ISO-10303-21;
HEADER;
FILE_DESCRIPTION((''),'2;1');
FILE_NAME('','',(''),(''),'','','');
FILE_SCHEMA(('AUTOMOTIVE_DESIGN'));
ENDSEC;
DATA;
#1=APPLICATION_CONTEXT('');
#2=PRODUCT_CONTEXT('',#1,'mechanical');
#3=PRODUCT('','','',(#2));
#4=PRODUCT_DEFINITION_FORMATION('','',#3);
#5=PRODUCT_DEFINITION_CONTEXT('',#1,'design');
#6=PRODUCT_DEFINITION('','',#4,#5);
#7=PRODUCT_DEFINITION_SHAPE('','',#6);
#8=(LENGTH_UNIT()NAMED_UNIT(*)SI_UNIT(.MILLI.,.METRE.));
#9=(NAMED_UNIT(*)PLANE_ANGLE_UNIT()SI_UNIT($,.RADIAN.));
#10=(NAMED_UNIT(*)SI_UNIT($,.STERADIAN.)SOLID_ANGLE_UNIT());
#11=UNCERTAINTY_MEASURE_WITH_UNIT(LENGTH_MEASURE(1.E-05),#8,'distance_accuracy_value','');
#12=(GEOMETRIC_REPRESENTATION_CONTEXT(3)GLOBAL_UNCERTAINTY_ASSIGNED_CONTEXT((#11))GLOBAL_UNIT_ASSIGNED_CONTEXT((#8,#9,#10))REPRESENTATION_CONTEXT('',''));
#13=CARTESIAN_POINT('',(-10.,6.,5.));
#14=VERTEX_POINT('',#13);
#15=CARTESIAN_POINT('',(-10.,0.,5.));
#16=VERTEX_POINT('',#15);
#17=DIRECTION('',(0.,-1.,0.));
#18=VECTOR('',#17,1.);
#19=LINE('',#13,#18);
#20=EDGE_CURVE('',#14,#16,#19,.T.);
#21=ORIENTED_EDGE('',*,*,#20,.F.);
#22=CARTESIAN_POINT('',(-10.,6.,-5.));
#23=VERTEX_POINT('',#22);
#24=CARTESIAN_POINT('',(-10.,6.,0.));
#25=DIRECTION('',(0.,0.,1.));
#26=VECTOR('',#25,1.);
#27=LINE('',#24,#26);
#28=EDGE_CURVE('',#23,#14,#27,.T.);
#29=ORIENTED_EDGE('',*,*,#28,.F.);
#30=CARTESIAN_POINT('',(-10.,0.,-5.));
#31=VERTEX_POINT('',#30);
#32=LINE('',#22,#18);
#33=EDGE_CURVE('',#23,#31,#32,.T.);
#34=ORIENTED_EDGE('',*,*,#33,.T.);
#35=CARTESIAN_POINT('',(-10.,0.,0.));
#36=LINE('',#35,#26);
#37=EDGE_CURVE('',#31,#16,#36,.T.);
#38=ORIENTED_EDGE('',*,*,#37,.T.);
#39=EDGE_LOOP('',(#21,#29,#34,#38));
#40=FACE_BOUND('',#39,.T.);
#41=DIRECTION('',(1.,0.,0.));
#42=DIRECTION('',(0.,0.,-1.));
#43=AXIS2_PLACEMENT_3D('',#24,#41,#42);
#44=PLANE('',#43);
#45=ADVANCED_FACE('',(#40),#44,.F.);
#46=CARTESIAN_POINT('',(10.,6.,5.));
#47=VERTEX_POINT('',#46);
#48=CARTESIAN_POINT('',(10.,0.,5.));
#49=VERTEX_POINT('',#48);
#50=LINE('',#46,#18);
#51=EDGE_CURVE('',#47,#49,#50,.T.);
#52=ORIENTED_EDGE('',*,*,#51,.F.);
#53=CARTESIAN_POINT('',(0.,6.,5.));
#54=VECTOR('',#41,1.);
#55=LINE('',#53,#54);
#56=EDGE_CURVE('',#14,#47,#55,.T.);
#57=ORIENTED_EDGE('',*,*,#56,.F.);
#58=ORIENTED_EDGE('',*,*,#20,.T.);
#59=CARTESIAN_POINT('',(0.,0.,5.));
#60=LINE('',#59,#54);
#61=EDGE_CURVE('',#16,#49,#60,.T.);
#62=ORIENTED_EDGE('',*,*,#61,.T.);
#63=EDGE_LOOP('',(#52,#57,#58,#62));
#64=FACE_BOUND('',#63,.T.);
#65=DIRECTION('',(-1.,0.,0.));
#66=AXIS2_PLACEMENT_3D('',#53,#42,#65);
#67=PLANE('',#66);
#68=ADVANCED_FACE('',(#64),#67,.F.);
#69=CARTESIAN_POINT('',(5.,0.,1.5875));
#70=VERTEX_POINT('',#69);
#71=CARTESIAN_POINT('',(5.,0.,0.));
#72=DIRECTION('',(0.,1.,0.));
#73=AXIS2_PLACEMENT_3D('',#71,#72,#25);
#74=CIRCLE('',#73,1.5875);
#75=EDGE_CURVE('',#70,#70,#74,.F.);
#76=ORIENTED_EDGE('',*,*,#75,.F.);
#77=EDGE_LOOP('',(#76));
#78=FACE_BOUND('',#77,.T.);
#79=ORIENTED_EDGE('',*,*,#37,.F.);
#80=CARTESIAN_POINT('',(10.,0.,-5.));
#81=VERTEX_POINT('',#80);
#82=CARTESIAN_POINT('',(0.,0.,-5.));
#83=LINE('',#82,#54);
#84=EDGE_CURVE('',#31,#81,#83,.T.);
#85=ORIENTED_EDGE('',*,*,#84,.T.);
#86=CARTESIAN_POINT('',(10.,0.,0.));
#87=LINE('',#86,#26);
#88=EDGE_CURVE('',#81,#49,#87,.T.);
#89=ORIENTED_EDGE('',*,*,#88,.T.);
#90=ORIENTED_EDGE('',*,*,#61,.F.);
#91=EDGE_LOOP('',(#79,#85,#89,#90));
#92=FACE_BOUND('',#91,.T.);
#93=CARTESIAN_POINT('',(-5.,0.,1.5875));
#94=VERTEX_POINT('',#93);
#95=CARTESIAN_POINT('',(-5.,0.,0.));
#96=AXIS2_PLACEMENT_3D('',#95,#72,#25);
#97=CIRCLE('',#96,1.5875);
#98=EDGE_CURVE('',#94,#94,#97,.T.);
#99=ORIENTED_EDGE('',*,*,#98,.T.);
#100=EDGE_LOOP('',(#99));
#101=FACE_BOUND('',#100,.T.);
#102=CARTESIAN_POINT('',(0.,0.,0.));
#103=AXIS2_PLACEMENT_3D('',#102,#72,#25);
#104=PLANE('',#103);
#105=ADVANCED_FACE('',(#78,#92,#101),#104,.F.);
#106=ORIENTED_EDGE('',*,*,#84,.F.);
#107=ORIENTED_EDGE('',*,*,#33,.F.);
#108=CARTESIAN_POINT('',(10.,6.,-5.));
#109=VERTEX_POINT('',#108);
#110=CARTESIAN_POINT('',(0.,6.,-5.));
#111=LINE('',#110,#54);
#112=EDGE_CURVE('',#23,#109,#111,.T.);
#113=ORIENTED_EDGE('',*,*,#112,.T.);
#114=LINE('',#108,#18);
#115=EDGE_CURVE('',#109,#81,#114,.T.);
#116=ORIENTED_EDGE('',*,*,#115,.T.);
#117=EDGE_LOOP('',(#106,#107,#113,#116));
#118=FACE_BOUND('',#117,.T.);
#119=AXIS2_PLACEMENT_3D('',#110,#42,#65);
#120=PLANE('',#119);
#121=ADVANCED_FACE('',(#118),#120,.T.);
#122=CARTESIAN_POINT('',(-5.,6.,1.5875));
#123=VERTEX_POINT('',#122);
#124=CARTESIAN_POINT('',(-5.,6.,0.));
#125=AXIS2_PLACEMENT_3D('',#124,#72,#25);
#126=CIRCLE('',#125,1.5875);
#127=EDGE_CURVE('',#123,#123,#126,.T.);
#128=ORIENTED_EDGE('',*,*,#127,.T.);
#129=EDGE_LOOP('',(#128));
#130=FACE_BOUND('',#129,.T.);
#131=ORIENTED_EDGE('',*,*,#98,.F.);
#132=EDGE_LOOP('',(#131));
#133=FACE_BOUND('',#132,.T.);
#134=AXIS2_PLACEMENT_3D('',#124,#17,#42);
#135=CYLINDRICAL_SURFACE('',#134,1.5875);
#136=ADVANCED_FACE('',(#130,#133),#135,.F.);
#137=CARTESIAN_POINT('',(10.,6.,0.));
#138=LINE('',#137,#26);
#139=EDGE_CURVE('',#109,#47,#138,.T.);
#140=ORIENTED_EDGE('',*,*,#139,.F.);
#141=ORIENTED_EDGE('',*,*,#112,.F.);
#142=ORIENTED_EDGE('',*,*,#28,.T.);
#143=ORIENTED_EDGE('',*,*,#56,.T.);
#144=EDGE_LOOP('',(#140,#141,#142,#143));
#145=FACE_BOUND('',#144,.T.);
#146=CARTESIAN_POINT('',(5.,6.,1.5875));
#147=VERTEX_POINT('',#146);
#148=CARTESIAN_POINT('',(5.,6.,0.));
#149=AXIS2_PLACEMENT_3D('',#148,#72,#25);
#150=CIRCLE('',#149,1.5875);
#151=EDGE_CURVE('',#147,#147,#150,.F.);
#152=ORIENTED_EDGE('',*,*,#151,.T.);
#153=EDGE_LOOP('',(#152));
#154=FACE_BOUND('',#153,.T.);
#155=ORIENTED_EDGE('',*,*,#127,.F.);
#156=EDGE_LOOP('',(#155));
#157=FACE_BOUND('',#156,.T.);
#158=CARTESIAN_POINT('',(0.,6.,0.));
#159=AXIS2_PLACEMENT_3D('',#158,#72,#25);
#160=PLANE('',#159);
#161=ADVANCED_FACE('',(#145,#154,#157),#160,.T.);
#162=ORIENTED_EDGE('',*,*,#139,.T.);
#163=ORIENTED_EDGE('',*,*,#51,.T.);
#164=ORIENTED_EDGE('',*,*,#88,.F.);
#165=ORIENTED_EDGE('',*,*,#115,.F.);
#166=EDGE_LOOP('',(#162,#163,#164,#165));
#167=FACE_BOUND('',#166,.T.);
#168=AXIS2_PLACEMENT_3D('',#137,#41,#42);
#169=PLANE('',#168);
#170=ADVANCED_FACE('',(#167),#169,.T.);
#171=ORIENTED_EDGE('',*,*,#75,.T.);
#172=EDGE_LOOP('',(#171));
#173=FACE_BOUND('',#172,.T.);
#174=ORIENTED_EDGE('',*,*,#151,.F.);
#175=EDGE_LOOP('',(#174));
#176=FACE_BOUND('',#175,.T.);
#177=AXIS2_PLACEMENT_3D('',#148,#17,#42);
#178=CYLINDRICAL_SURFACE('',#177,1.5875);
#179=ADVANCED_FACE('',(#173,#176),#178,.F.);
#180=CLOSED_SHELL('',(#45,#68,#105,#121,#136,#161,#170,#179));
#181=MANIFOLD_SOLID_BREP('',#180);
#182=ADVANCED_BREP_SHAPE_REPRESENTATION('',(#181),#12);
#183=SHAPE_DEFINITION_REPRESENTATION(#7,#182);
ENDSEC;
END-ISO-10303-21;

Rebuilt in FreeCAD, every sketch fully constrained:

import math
import FreeCAD as App
import Part
import Sketcher

V = App.Vector
Q = App.Units.Quantity

doc = App.newDocument("Part")
params = doc.addObject("Spreadsheet::Sheet", "Params")
for row, (alias, value) in enumerate([
    ("sketch1_width", "20 mm"),
    ("sketch1_height", "10 mm"),
    ("pad1_length", "6 mm"),
], start=1):
    params.set(f"A{row}", alias)
    params.set(f"B{row}", "=" + value)
    params.setAlias(f"B{row}", alias)

body = doc.addObject("PartDesign::Body", "Body")

# Sketch on XZ plane
sketch1 = body.newObject("Sketcher::SketchObject", "Sketch")
sketch1.AttachmentSupport = (doc.getObject("XZ_Plane"), [""])
sketch1.MapMode = "FlatFace"
sketch1.addGeometry(Part.LineSegment(V(10, 5, 0), V(10, -5, 0)), False)
sketch1.addGeometry(Part.LineSegment(V(10, -5, 0), V(-10, -5, 0)), False)
sketch1.addGeometry(Part.LineSegment(V(-10, -5, 0), V(-10, 5, 0)), False)
sketch1.addGeometry(Part.LineSegment(V(-10, 5, 0), V(10, 5, 0)), False)
sketch1.addGeometry(Part.ArcOfCircle(Part.Circle(V(-5, 0, 0), V(0, 0, 1), 1.5875), math.radians(-90), math.radians(0)), False)
sketch1.addGeometry(Part.ArcOfCircle(Part.Circle(V(-5, 0, 0), V(0, 0, 1), 1.5875), math.radians(0), math.radians(90)), False)
sketch1.addGeometry(Part.ArcOfCircle(Part.Circle(V(-5, 0, 0), V(0, 0, 1), 1.5875), math.radians(90), math.radians(270)), False)
sketch1.addGeometry(Part.Circle(V(5, 0, 0), V(0, 0, 1), 1.5875), False)
sketch1.addConstraint(Sketcher.Constraint("Coincident", 0, 2, 1, 1))
sketch1.addConstraint(Sketcher.Constraint("Coincident", 1, 2, 2, 1))
sketch1.addConstraint(Sketcher.Constraint("Coincident", 2, 2, 3, 1))
sketch1.addConstraint(Sketcher.Constraint("Coincident", 3, 2, 0, 1))
sketch1.addConstraint(Sketcher.Constraint("Tangent", 4, 2, 5, 1))
sketch1.addConstraint(Sketcher.Constraint("Tangent", 5, 2, 6, 1))
sketch1.addConstraint(Sketcher.Constraint("Tangent", 6, 2, 4, 1))
sketch1.addConstraint(Sketcher.Constraint("Vertical", 0))
sketch1.addConstraint(Sketcher.Constraint("Horizontal", 1))
sketch1.addConstraint(Sketcher.Constraint("Vertical", 2))
sketch1.addConstraint(Sketcher.Constraint("Horizontal", 3))
sketch1.addConstraint(Sketcher.Constraint("Equal", 6, 7))
sketch1.addConstraint(Sketcher.Constraint("Symmetric", 4, 3, 7, 3, -1, 1))
sketch1.addConstraint(Sketcher.Constraint("Symmetric", 0, 2, 2, 2, -1, 1))
sketch1.addConstraint(Sketcher.Constraint("Symmetric", 5, 2, 6, 2, -1))
sketch1.addConstraint(Sketcher.Constraint("PointOnObject", 4, 2, -1))
sketch1.addConstraint(Sketcher.Constraint("Vertical", 6, 3, 5, 2))
sketch1.addConstraint(Sketcher.Constraint("DistanceX", 1, 2, 1, 1, Q("20 mm")))
sketch1.addConstraint(Sketcher.Constraint("DistanceY", 0, 2, 0, 1, Q("10 mm")))
sketch1.addConstraint(Sketcher.Constraint("Diameter", 7, Q("3.175 mm")))
sketch1.addConstraint(Sketcher.Constraint("DistanceX", 4, 3, -1, 1, Q("5 mm")))
sketch1.setExpression("Constraints[17]", "Params.sketch1_width")
sketch1.setExpression("Constraints[18]", "Params.sketch1_height")
pad1 = body.newObject("PartDesign::Pad", "Pad")
pad1.Profile = sketch1
pad1.setExpression("Length", "Params.pad1_length")
pad1.Reversed = True

doc.recompute()
